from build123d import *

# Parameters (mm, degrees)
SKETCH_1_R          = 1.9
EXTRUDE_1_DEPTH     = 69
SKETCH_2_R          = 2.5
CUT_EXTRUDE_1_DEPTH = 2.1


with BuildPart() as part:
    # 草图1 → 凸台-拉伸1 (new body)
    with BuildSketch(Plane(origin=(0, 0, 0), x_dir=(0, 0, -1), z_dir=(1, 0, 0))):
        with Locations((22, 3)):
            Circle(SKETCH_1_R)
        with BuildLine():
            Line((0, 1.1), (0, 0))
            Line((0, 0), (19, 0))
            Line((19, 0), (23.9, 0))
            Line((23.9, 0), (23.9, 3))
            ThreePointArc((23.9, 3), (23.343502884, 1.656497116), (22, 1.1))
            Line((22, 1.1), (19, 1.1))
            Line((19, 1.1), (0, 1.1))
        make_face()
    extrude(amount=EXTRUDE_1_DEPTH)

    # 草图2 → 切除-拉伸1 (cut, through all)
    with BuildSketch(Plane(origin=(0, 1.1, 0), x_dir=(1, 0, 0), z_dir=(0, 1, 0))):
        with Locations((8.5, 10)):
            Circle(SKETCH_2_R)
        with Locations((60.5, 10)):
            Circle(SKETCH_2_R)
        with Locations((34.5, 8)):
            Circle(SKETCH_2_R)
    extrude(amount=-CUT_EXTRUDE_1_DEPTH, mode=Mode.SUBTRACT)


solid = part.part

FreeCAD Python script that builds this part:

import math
import FreeCAD as App
import Part
import Sketcher
from FreeCAD import Vector
Q = App.Units.Quantity

doc = App.newDocument("Part")
body = doc.addObject("PartDesign::Body", "Body")

sketch1 = body.newObject("Sketcher::SketchObject", "Sketch")
sketch1.AttachmentSupport = (doc.getObject("YZ_Plane"), [""])
sketch1.MapMode = "FlatFace"
sketch1.addGeometry([
    Part.ArcOfCircle(Part.Circle(Vector(3, -22, 0), Vector(0, 0, 1), 1.9), math.radians(-90), math.radians(180)),
    Part.LineSegment(Vector(1.1, -22, 0), Vector(1.1, 0, 0)),
    Part.LineSegment(Vector(1.1, 0, 0), Vector(0, 0, 0)),
    Part.LineSegment(Vector(0, 0, 0), Vector(0, -23.9, 0)),
    Part.LineSegment(Vector(0, -23.9, 0), Vector(3, -23.9, 0)),
], False)
sketch1.addConstraint([
    Sketcher.Constraint("Tangent", 0, 2, 1, 1),
    Sketcher.Constraint("Coincident", 1, 2, 2, 1),
    Sketcher.Constraint("Coincident", 2, 2, 3, 1),
    Sketcher.Constraint("Coincident", 3, 2, 4, 1),
    Sketcher.Constraint("Tangent", 4, 2, 0, 1),
    Sketcher.Constraint("Vertical", 1),
    Sketcher.Constraint("Horizontal", 2),
    Sketcher.Constraint("Vertical", 3),
    Sketcher.Constraint("Horizontal", 4),
    Sketcher.Constraint("Coincident", 2, 2, -1, 1),
    Sketcher.Constraint("Radius", 0, Q("1.9 mm")),
    Sketcher.Constraint("DistanceX", 4, 1, 4, 2, Q("3 mm")),
    Sketcher.Constraint("DistanceY", 1, 1, 1, 2, Q("22 mm")),
])
pad1 = body.newObject("PartDesign::Pad", "Pad")
pad1.Profile = sketch1
pad1.Length = 69

sketch2 = body.newObject("Sketcher::SketchObject", "Sketch001")
sketch2.AttachmentSupport = (doc.getObject("XZ_Plane"), [""])
sketch2.MapMode = "FlatFace"
sketch2.AttachmentOffset = App.Placement(Vector(0, 0, -1.1), App.Rotation())
sketch2.addGeometry([
    Part.Circle(Vector(8.5, -10, 0), Vector(0, 0, 1), 2.5),
    Part.Circle(Vector(60.5, -10, 0), Vector(0, 0, 1), 2.5),
    Part.Circle(Vector(34.5, -8, 0), Vector(0, 0, 1), 2.5),
], False)
sketch2.addConstraint([
    Sketcher.Constraint("Equal", 0, 1),
    Sketcher.Constraint("Equal", 1, 2),
    Sketcher.Constraint("Horizontal", 0, 3, 1, 3),
    Sketcher.Constraint("Diameter", 0, Q("5 mm")),
    Sketcher.Constraint("DistanceY", 0, 3, -1, 1, Q("10 mm")),
    Sketcher.Constraint("DistanceY", 2, 3, -1, 1, Q("8 mm")),
    Sketcher.Constraint("DistanceX", 0, 3, 1, 3, Q("52 mm")),
    Sketcher.Constraint("DistanceX", 0, 3, 2, 3, Q("26 mm")),
    Sketcher.Constraint("DistanceX", -1, 1, 0, 3, Q("8.5 mm")),
])
pocket1 = body.newObject("PartDesign::Pocket", "Pocket")
pocket1.Profile = sketch2
pocket1.Type = "ThroughAll"
pocket1.Reversed = True

doc.recompute()
